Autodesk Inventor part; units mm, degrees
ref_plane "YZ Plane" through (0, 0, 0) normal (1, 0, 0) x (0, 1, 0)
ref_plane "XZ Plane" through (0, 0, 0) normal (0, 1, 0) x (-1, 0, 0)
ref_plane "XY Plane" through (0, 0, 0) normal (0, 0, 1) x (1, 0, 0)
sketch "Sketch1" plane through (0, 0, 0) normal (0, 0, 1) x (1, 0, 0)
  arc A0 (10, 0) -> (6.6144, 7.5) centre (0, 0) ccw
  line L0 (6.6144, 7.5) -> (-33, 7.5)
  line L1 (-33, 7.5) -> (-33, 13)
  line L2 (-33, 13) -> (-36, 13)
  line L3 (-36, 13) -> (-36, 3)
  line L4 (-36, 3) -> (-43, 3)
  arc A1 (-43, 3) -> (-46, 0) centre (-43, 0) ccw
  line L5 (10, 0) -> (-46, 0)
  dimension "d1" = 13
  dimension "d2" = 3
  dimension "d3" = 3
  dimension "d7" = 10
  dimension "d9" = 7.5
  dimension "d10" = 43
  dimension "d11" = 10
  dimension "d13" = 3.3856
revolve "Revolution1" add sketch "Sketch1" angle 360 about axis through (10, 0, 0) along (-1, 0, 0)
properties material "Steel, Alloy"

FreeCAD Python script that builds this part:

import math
import FreeCAD as App
import Part
import Sketcher
Q = App.Units.Quantity

doc = App.newDocument("Part")
body = doc.addObject("PartDesign::Body", "Body")

# Sketch on XY plane
sketch1 = doc.addObject("Sketcher::SketchObject", "Sketch")
body.addObject(sketch1)
sketch1.AttachmentSupport = (doc.XY_Plane, [""])
sketch1.MapMode = "FlatFace"
sketch1.addGeometry(Part.LineSegment(App.Vector(-46, 0, 0), App.Vector(10, 0, 0)), False)
sketch1.addGeometry(Part.ArcOfCircle(Part.Circle(App.Vector(0, 0, 0), App.Vector(0, 0, 1), 10), math.radians(0), math.radians(49)), False)
sketch1.addGeometry(Part.LineSegment(App.Vector(6.6, 7.5, 0), App.Vector(-33, 7.5, 0)), False)
sketch1.addGeometry(Part.LineSegment(App.Vector(-33, 7.5, 0), App.Vector(-33, 13, 0)), False)
sketch1.addGeometry(Part.LineSegment(App.Vector(-33, 13, 0), App.Vector(-36, 13, 0)), False)
sketch1.addGeometry(Part.LineSegment(App.Vector(-36, 13, 0), App.Vector(-36, 3, 0)), False)
sketch1.addGeometry(Part.LineSegment(App.Vector(-36, 3, 0), App.Vector(-43, 3, 0)), False)
sketch1.addGeometry(Part.ArcOfCircle(Part.Circle(App.Vector(-43, 0, 0), App.Vector(0, 0, 1), 3), math.radians(90), math.radians(180)), False)
sketch1.addConstraint(Sketcher.Constraint("Coincident", 0, 2, 1, 1))
sketch1.addConstraint(Sketcher.Constraint("Coincident", 1, 2, 2, 1))
sketch1.addConstraint(Sketcher.Constraint("Coincident", 2, 2, 3, 1))
sketch1.addConstraint(Sketcher.Constraint("Coincident", 3, 2, 4, 1))
sketch1.addConstraint(Sketcher.Constraint("Coincident", 4, 2, 5, 1))
sketch1.addConstraint(Sketcher.Constraint("Coincident", 5, 2, 6, 1))
sketch1.addConstraint(Sketcher.Constraint("Tangent", 6, 2, 7, 1))
sketch1.addConstraint(Sketcher.Constraint("Coincident", 7, 2, 0, 1))
sketch1.addConstraint(Sketcher.Constraint("Horizontal", 0))
sketch1.addConstraint(Sketcher.Constraint("Horizontal", 2))
sketch1.addConstraint(Sketcher.Constraint("Vertical", 3))
sketch1.addConstraint(Sketcher.Constraint("Horizontal", 4))
sketch1.addConstraint(Sketcher.Constraint("Vertical", 5))
sketch1.addConstraint(Sketcher.Constraint("Horizontal", 6))
sketch1.addConstraint(Sketcher.Constraint("Coincident", 1, 3, -1, 1))
sketch1.addConstraint(Sketcher.Constraint("PointOnObject", 7, 3, -1))
sketch1.addConstraint(Sketcher.Constraint("PointOnObject", 0, 2, -1))
sketch1.addConstraint(Sketcher.Constraint("Radius", 1, Q("10 mm")))
sketch1.addConstraint(Sketcher.Constraint("Radius", 7, Q("3 mm")))
sketch1.addConstraint(Sketcher.Constraint("DistanceX", 4, 2, 4, 1, Q("3 mm")))
sketch1.addConstraint(Sketcher.Constraint("DistanceY", 5, 2, 5, 1, Q("10 mm")))
sketch1.addConstraint(Sketcher.Constraint("DistanceX", 7, 3, -1, 1, Q("43 mm")))
sketch1.addConstraint(Sketcher.Constraint("DistanceX", 7, 3, 2, 2, Q("10 mm")))
sketch1.addConstraint(Sketcher.Constraint("DistanceY", -1, 1, 1, 2, Q("7.5 mm")))
revolution = doc.addObject("PartDesign::Revolution", "Revolution")
body.addObject(revolution)
revolution.Profile = sketch1
revolution.ReferenceAxis = (sketch1, ["H_Axis"])
revolution.Angle = 360

doc.recompute()
